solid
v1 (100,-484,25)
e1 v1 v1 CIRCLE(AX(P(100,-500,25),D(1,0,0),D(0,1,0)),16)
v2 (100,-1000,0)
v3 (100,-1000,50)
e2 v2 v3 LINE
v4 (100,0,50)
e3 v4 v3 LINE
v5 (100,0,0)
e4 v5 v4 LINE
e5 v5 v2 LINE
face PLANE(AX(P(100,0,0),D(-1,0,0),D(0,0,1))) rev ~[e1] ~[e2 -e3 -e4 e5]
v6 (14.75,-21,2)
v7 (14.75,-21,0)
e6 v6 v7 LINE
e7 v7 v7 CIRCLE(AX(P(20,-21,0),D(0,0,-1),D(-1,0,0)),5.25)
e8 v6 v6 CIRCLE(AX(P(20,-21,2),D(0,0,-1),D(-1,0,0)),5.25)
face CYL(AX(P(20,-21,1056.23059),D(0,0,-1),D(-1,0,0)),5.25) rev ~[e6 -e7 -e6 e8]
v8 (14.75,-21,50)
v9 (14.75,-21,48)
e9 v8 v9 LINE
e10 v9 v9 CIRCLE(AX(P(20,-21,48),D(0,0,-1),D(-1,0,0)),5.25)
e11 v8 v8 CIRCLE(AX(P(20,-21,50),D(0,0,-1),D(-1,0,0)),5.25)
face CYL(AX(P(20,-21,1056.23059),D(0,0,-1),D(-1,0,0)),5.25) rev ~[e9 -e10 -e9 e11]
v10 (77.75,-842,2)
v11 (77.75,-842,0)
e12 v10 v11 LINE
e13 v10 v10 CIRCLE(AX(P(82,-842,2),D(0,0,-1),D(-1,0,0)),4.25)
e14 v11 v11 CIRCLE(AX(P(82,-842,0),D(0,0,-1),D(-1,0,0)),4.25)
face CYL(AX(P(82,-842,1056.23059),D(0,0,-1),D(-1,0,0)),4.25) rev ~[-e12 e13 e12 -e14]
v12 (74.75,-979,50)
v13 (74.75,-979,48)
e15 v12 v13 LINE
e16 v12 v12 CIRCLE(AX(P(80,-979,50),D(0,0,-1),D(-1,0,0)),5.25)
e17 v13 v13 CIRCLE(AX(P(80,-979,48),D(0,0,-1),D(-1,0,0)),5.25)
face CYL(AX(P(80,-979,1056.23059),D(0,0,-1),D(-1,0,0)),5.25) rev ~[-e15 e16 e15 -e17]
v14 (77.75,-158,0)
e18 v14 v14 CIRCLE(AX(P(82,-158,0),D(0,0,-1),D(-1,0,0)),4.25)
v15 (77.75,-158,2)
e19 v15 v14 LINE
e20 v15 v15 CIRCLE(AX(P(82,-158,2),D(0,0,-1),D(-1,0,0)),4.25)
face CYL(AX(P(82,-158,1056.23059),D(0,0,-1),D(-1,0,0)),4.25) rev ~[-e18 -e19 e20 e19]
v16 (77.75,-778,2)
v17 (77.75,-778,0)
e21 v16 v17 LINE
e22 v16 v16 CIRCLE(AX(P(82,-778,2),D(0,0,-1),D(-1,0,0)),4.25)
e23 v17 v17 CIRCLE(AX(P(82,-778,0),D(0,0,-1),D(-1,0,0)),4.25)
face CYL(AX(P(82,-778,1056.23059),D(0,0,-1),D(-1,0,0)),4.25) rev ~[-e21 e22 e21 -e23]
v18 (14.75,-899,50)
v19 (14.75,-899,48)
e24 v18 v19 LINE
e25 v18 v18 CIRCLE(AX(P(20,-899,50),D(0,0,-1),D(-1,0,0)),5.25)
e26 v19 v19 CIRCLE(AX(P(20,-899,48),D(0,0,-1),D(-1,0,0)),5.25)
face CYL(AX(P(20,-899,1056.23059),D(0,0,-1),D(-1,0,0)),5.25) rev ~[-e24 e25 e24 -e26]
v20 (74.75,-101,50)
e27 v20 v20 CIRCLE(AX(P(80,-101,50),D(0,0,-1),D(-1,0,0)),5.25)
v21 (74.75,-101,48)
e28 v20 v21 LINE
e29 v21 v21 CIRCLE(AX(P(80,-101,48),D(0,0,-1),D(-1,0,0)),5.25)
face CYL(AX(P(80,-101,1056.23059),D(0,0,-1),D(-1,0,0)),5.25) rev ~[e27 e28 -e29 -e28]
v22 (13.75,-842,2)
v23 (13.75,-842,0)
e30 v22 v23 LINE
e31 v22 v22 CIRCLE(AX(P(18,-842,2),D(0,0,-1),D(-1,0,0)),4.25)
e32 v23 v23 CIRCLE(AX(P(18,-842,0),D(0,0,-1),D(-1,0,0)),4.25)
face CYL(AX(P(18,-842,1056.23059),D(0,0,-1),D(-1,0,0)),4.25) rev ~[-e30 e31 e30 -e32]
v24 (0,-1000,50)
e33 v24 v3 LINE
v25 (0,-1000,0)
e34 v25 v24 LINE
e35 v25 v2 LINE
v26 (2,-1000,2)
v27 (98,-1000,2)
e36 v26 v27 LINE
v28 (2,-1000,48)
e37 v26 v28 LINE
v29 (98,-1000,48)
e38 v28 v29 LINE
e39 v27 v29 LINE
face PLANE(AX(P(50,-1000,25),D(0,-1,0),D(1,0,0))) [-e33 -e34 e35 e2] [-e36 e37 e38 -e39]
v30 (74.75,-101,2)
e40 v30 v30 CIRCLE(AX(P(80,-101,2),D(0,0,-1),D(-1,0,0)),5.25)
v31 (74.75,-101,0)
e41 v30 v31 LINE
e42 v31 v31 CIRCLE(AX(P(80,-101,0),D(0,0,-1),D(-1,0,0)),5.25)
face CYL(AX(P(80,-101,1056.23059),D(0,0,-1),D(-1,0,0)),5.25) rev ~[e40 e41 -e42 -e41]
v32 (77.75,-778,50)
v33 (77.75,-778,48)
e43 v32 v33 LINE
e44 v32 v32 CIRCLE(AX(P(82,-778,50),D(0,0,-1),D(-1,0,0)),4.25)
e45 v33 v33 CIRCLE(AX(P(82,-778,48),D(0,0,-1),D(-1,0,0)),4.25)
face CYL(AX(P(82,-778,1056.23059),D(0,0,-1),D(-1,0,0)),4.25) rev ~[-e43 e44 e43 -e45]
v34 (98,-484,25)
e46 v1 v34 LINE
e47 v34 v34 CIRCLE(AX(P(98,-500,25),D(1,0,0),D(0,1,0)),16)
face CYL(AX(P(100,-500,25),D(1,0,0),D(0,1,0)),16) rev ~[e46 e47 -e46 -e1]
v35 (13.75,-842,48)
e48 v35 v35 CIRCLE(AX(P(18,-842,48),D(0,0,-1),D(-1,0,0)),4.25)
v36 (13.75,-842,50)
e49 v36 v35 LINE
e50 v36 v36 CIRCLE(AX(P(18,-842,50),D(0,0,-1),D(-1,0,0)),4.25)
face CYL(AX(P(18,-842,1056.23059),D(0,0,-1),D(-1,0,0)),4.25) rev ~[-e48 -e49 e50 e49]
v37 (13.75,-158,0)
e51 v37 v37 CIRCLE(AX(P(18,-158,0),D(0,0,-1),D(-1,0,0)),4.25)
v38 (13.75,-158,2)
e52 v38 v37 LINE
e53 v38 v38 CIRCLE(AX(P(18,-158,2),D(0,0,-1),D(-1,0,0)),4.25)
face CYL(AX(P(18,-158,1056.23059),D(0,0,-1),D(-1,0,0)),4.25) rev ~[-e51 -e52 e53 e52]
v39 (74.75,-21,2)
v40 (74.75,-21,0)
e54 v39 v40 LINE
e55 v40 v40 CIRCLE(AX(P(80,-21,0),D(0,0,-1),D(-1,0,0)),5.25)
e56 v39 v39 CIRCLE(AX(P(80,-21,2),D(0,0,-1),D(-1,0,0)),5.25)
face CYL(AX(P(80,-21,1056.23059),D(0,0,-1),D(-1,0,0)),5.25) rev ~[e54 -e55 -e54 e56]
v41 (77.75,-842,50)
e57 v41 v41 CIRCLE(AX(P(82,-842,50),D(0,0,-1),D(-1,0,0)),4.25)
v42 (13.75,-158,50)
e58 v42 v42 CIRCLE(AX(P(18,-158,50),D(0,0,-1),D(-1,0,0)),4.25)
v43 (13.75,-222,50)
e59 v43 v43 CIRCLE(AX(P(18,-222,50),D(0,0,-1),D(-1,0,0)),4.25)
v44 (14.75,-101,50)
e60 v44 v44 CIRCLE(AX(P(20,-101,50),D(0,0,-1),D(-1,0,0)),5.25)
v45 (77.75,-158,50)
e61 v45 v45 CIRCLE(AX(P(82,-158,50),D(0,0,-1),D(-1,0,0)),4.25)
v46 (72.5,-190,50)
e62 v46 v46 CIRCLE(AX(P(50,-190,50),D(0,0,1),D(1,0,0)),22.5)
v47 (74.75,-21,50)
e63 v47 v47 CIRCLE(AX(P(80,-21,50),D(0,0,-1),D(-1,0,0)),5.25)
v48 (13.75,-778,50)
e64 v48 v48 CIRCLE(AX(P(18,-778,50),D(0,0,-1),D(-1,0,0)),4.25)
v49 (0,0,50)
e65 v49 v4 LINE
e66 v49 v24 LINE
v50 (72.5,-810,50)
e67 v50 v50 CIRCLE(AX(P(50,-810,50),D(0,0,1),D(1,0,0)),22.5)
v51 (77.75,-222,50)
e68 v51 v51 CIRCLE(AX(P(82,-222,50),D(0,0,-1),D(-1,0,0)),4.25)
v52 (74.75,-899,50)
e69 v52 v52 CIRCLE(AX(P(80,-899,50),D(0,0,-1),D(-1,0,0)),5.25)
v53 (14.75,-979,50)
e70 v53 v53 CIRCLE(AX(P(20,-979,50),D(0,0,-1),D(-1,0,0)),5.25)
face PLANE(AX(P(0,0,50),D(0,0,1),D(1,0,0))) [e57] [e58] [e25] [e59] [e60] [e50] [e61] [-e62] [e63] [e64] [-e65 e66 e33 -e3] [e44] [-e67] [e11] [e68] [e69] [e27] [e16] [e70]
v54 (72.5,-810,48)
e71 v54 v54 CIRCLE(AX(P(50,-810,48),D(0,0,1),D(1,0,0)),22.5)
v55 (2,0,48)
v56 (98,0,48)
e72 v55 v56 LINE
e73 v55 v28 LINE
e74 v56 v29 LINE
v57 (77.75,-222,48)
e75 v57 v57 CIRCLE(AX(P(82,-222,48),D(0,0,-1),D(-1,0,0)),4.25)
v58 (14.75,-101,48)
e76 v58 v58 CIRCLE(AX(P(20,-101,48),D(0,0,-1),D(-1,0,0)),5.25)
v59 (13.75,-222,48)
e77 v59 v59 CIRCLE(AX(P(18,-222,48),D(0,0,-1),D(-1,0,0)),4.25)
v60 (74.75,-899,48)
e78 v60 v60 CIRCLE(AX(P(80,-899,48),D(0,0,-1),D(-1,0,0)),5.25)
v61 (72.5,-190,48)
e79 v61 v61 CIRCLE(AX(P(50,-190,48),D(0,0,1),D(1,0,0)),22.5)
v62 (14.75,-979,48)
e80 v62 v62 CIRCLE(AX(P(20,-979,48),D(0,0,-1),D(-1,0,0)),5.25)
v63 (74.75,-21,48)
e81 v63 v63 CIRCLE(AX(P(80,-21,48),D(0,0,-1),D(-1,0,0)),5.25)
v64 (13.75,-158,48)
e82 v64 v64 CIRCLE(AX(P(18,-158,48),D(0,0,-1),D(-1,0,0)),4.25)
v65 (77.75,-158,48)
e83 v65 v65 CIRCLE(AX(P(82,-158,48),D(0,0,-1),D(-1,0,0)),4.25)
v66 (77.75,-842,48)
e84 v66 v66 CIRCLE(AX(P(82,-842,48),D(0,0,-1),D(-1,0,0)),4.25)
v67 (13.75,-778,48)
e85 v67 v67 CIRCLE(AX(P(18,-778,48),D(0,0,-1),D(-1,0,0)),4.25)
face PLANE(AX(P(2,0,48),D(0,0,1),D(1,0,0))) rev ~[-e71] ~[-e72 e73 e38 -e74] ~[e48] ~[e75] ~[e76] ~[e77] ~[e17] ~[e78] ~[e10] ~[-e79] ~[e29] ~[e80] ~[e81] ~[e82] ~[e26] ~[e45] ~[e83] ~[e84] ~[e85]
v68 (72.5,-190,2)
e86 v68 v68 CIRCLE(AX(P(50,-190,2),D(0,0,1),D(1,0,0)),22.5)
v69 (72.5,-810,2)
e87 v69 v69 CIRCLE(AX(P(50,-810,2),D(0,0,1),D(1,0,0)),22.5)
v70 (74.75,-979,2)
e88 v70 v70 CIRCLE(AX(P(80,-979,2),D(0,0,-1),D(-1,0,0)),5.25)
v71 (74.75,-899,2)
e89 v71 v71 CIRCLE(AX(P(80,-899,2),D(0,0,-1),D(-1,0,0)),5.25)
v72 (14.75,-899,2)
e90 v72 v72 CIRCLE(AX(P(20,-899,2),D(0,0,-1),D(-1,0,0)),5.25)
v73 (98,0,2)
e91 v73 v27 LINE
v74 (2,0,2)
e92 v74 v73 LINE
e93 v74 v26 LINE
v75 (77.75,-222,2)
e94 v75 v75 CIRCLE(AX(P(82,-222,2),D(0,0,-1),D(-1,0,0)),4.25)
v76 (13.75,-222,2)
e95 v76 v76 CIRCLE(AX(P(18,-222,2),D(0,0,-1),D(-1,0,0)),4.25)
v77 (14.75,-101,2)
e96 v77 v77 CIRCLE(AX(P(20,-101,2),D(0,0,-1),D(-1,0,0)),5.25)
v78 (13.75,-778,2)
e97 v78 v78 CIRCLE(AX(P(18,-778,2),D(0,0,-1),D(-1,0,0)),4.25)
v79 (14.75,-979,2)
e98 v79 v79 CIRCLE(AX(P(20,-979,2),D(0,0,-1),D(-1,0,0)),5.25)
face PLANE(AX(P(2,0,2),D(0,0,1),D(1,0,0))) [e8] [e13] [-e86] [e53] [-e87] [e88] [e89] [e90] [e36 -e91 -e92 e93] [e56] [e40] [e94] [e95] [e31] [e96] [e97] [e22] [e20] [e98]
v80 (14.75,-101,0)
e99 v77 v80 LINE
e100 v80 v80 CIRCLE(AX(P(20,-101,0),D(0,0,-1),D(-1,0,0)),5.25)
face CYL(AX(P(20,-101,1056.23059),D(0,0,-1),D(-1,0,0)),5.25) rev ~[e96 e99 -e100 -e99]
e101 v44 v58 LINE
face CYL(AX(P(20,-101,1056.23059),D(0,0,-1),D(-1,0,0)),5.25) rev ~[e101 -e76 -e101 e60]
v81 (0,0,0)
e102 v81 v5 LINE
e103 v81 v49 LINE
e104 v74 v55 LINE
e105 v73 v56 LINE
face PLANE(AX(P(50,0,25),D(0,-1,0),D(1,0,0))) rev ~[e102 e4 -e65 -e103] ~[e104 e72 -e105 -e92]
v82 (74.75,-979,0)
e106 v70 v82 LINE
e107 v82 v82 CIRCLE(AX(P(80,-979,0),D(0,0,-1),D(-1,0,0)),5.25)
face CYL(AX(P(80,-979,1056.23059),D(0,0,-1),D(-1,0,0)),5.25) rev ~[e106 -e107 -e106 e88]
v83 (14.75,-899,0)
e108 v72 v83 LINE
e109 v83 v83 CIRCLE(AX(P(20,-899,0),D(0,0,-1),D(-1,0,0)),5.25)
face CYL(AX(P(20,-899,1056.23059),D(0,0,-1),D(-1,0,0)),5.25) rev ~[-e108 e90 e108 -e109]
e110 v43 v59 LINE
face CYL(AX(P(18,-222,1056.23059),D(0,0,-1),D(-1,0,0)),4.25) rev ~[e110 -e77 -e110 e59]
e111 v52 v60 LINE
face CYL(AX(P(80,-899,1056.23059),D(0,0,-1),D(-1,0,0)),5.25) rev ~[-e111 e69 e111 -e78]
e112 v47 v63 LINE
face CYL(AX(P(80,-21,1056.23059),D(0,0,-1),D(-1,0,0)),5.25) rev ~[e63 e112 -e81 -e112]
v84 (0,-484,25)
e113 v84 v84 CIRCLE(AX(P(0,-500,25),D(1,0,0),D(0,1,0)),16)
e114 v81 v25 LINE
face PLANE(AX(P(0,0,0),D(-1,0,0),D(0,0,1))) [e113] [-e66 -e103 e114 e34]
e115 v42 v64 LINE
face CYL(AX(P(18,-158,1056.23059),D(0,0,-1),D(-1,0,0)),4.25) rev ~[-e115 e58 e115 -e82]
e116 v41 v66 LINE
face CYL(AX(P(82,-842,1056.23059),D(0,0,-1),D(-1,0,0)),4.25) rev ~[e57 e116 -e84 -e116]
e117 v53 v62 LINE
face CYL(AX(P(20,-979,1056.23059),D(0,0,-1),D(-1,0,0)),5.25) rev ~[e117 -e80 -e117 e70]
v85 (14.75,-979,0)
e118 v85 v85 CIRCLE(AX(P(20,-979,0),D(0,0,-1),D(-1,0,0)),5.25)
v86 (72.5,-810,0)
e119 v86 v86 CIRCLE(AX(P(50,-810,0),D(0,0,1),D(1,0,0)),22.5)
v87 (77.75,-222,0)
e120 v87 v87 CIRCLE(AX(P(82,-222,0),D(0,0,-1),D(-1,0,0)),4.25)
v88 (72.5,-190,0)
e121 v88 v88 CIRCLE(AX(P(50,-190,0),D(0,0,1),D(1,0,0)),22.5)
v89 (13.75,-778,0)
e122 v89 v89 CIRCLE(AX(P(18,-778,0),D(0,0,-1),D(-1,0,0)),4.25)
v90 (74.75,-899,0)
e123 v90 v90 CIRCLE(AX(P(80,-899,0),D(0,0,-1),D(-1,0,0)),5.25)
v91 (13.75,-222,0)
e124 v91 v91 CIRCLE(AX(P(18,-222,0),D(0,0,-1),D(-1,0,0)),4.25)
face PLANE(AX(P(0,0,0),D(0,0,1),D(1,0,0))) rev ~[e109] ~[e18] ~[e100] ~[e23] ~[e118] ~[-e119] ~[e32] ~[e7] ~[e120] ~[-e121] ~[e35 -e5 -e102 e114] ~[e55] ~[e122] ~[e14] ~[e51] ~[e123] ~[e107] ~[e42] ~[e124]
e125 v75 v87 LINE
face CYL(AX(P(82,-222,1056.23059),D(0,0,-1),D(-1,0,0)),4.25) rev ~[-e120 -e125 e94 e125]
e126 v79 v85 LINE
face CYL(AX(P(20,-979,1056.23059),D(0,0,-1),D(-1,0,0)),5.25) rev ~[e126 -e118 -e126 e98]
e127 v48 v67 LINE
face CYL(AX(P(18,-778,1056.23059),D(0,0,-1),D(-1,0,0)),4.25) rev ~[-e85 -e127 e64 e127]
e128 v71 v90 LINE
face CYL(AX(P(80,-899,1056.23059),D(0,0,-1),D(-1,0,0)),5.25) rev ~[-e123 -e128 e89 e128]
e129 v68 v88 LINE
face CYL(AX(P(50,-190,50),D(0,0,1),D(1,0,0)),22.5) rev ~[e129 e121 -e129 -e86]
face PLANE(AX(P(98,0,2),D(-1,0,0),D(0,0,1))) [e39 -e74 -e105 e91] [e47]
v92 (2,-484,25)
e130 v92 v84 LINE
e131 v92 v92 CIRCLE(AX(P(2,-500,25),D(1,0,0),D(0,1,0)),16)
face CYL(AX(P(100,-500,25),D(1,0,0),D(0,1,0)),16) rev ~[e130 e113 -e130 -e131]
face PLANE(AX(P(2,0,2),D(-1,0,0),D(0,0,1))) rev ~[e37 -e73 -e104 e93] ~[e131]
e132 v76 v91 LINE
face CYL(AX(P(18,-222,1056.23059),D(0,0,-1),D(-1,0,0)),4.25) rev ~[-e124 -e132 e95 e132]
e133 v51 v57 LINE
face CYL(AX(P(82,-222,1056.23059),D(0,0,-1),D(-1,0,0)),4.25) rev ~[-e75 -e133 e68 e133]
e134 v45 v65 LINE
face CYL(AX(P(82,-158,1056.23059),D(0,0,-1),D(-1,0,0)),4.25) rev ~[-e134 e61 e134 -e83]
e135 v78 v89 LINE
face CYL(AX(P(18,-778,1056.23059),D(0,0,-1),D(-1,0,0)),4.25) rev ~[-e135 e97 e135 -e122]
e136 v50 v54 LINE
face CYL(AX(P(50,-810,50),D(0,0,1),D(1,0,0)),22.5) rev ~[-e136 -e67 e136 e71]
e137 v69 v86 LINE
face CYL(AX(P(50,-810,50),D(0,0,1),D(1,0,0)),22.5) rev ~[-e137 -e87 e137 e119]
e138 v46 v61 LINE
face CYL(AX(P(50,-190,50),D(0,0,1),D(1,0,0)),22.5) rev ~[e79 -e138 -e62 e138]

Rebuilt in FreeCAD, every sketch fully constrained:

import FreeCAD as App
import Part
import Sketcher

V = App.Vector


def add_polygon(sketch, points):
    """Adds a closed chain of lines whose ends are joined by coincident constraints."""
    first, n = sketch.GeometryCount, len(points)
    for a, b in zip(points, points[1:] + points[:1]):
        sketch.addGeometry(Part.LineSegment(App.Vector(*a, 0), App.Vector(*b, 0)), False)
    for i in range(n):
        sketch.addConstraint(Sketcher.Constraint("Coincident", first + i, 2, first + (i + 1) % n, 1))

doc = App.newDocument("Part")
body = doc.addObject("PartDesign::Body", "Body")

sketch1 = doc.addObject("Sketcher::SketchObject", "Sketch")
body.addObject(sketch1)
sketch1.AttachmentSupport = (doc.XZ_Plane, [""])
sketch1.MapMode = "FlatFace"
add_polygon(sketch1, [(0, 50), (0, 0), (100, 0), (100, 50)])
add_polygon(sketch1, [(98, 2), (2, 2), (2, 48), (98, 48)])
sketch1.addConstraint(Sketcher.Constraint("Vertical", 0))
sketch1.addConstraint(Sketcher.Constraint("Horizontal", 1))
sketch1.addConstraint(Sketcher.Constraint("Vertical", 2))
sketch1.addConstraint(Sketcher.Constraint("Horizontal", 3))
sketch1.addConstraint(Sketcher.Constraint("Horizontal", 4))
sketch1.addConstraint(Sketcher.Constraint("Vertical", 5))
sketch1.addConstraint(Sketcher.Constraint("Horizontal", 6))
sketch1.addConstraint(Sketcher.Constraint("Vertical", 7))
sketch1.addConstraint(Sketcher.Constraint("Coincident", 0, 2, -1, 1))
sketch1.addConstraint(Sketcher.Constraint("DistanceX", 1, 1, 1, 2, 100.0))
sketch1.addConstraint(Sketcher.Constraint("DistanceX", 4, 2, 4, 1, 96.0))
sketch1.addConstraint(Sketcher.Constraint("DistanceY", 0, 2, 0, 1, 50.0))
sketch1.addConstraint(Sketcher.Constraint("DistanceY", 5, 1, 5, 2, 46.0))
sketch1.addConstraint(Sketcher.Constraint("DistanceX", -1, 1, 4, 2, 2.0))
sketch1.addConstraint(Sketcher.Constraint("DistanceY", -1, 1, 4, 2, 2.0))
pad1 = doc.addObject("PartDesign::Pad", "Pad")
body.addObject(pad1)
pad1.Profile = sketch1
pad1.Length = 1000

sketch2 = doc.addObject("Sketcher::SketchObject", "Sketch001")
body.addObject(sketch2)
sketch2.AttachmentSupport = (doc.XY_Plane, [""])
sketch2.MapMode = "FlatFace"
sketch2.AttachmentOffset = App.Placement(V(0, 0, 50), App.Rotation())
sketch2.addGeometry(Part.Circle(V(50, -810, 0), V(0, 0, 1), 22), False)
sketch2.addGeometry(Part.Circle(V(50, -190, 0), V(0, 0, 1), 22), False)
sketch2.addConstraint(Sketcher.Constraint("Equal", 0, 1))
sketch2.addConstraint(Sketcher.Constraint("Vertical", 0, 3, 1, 3))
sketch2.addConstraint(Sketcher.Constraint("Diameter", 0, 45.0))
sketch2.addConstraint(Sketcher.Constraint("DistanceX", -1, 1, 0, 3, 50.0))
sketch2.addConstraint(Sketcher.Constraint("DistanceY", 0, 3, -1, 1, 810.0))
sketch2.addConstraint(Sketcher.Constraint("DistanceY", 1, 3, -1, 1, 190.0))
pocket1 = doc.addObject("PartDesign::Pocket", "Pocket")
body.addObject(pocket1)
pocket1.Profile = sketch2
pocket1.Type = "ThroughAll"

sketch3 = doc.addObject("Sketcher::SketchObject", "Sketch002")
body.addObject(sketch3)
sketch3.AttachmentSupport = (doc.XY_Plane, [""])
sketch3.MapMode = "FlatFace"
sketch3.AttachmentOffset = App.Placement(V(0, 0, 50), App.Rotation())
sketch3.addGeometry(Part.Circle(V(18, -842, 0), V(0, 0, 1), 4.2), False)
sketch3.addGeometry(Part.Circle(V(18, -778, 0), V(0, 0, 1), 4.2), False)
sketch3.addGeometry(Part.Circle(V(82, -778, 0), V(0, 0, 1), 4.2), False)
sketch3.addGeometry(Part.Circle(V(82, -842, 0), V(0, 0, 1), 4.2), False)
sketch3.addGeometry(Part.Circle(V(18, -222, 0), V(0, 0, 1), 4.2), False)
sketch3.addGeometry(Part.Circle(V(18, -158, 0), V(0, 0, 1), 4.2), False)
sketch3.addGeometry(Part.Circle(V(82, -158, 0), V(0, 0, 1), 4.2), False)
sketch3.addGeometry(Part.Circle(V(82, -222, 0), V(0, 0, 1), 4.2), False)
sketch3.addConstraint(Sketcher.Constraint("Equal", 0, 1))
sketch3.addConstraint(Sketcher.Constraint("Equal", 1, 2))
sketch3.addConstraint(Sketcher.Constraint("Equal", 2, 3))
sketch3.addConstraint(Sketcher.Constraint("Equal", 3, 4))
sketch3.addConstraint(Sketcher.Constraint("Equal", 4, 5))
sketch3.addConstraint(Sketcher.Constraint("Equal", 5, 6))
sketch3.addConstraint(Sketcher.Constraint("Equal", 6, 7))
sketch3.addConstraint(Sketcher.Constraint("Horizontal", 1, 3, 2, 3))
sketch3.addConstraint(Sketcher.Constraint("Horizontal", 0, 3, 3, 3))
sketch3.addConstraint(Sketcher.Constraint("Horizontal", 5, 3, 6, 3))
sketch3.addConstraint(Sketcher.Constraint("Horizontal", 4, 3, 7, 3))
sketch3.addConstraint(Sketcher.Constraint("Vertical", 0, 3, 1, 3))
sketch3.addConstraint(Sketcher.Constraint("Vertical", 2, 3, 3, 3))
sketch3.addConstraint(Sketcher.Constraint("Vertical", 1, 3, 4, 3))
sketch3.addConstraint(Sketcher.Constraint("Vertical", 4, 3, 5, 3))
sketch3.addConstraint(Sketcher.Constraint("Vertical", 3, 3, 6, 3))
sketch3.addConstraint(Sketcher.Constraint("Vertical", 6, 3, 7, 3))
sketch3.addConstraint(Sketcher.Constraint("Diameter", 0, 8.5))
sketch3.addConstraint(Sketcher.Constraint("DistanceX", -1, 1, 0, 3, 18.0))
sketch3.addConstraint(Sketcher.Constraint("DistanceY", 0, 3, -1, 1, 842.0))
sketch3.addConstraint(Sketcher.Constraint("DistanceY", 1, 3, -1, 1, 778.0))
sketch3.addConstraint(Sketcher.Constraint("DistanceX", -1, 1, 2, 3, 82.0))
sketch3.addConstraint(Sketcher.Constraint("DistanceY", 4, 3, -1, 1, 222.0))
sketch3.addConstraint(Sketcher.Constraint("DistanceY", 5, 3, -1, 1, 158.0))
doc.recompute()
hole = doc.addObject("PartDesign::Hole", "Hole")
body.addObject(hole)
hole.Profile = sketch3
hole.ThreadType = "None"
hole.Diameter = 8.5
hole.DepthType = "ThroughAll"

sketch4 = doc.addObject("Sketcher::SketchObject", "Sketch003")
body.addObject(sketch4)
sketch4.AttachmentSupport = (doc.XY_Plane, [""])
sketch4.MapMode = "FlatFace"
sketch4.AttachmentOffset = App.Placement(V(0, 0, 50), App.Rotation())
sketch4.addGeometry(Part.Circle(V(20, -101, 0), V(0, 0, 1), 5), False)
sketch4.addGeometry(Part.Circle(V(20, -21, 0), V(0, 0, 1), 5), False)
sketch4.addGeometry(Part.Circle(V(80, -21, 0), V(0, 0, 1), 5), False)
sketch4.addGeometry(Part.Circle(V(80, -101, 0), V(0, 0, 1), 5), False)
sketch4.addGeometry(Part.Circle(V(20, -899, 0), V(0, 0, 1), 5), False)
sketch4.addGeometry(Part.Circle(V(20, -979, 0), V(0, 0, 1), 5), False)
sketch4.addGeometry(Part.Circle(V(80, -979, 0), V(0, 0, 1), 5), False)
sketch4.addGeometry(Part.Circle(V(80, -899, 0), V(0, 0, 1), 5), False)
sketch4.addConstraint(Sketcher.Constraint("Equal", 0, 1))
sketch4.addConstraint(Sketcher.Constraint("Equal", 1, 2))
sketch4.addConstraint(Sketcher.Constraint("Equal", 2, 3))
sketch4.addConstraint(Sketcher.Constraint("Equal", 3, 4))
sketch4.addConstraint(Sketcher.Constraint("Equal", 4, 5))
sketch4.addConstraint(Sketcher.Constraint("Equal", 5, 6))
sketch4.addConstraint(Sketcher.Constraint("Equal", 6, 7))
sketch4.addConstraint(Sketcher.Constraint("Horizontal", 1, 3, 2, 3))
sketch4.addConstraint(Sketcher.Constraint("Horizontal", 0, 3, 3, 3))
sketch4.addConstraint(Sketcher.Constraint("Horizontal", 5, 3, 6, 3))
sketch4.addConstraint(Sketcher.Constraint("Horizontal", 4, 3, 7, 3))
sketch4.addConstraint(Sketcher.Constraint("Vertical", 0, 3, 1, 3))
sketch4.addConstraint(Sketcher.Constraint("Vertical", 2, 3, 3, 3))
sketch4.addConstraint(Sketcher.Constraint("Vertical", 1, 3, 4, 3))
sketch4.addConstraint(Sketcher.Constraint("Vertical", 4, 3, 5, 3))
sketch4.addConstraint(Sketcher.Constraint("Vertical", 3, 3, 6, 3))
sketch4.addConstraint(Sketcher.Constraint("Vertical", 6, 3, 7, 3))
sketch4.addConstraint(Sketcher.Constraint("Diameter", 0, 10.5))
sketch4.addConstraint(Sketcher.Constraint("DistanceX", -1, 1, 0, 3, 20.0))
sketch4.addConstraint(Sketcher.Constraint("DistanceY", 0, 3, -1, 1, 101.0))
sketch4.addConstraint(Sketcher.Constraint("DistanceY", 1, 3, -1, 1, 21.0))
sketch4.addConstraint(Sketcher.Constraint("DistanceX", -1, 1, 2, 3, 80.0))
sketch4.addConstraint(Sketcher.Constraint("DistanceY", 4, 3, -1, 1, 899.0))
sketch4.addConstraint(Sketcher.Constraint("DistanceY", 5, 3, -1, 1, 979.0))
doc.recompute()
hole2 = doc.addObject("PartDesign::Hole", "Hole001")
body.addObject(hole2)
hole2.Profile = sketch4
hole2.ThreadType = "None"
hole2.Diameter = 10.5
hole2.DepthType = "ThroughAll"

sketch5 = doc.addObject("Sketcher::SketchObject", "Sketch004")
body.addObject(sketch5)
sketch5.AttachmentSupport = (doc.YZ_Plane, [""])
sketch5.MapMode = "FlatFace"
sketch5.AttachmentOffset = App.Placement(V(0, 0, 100), App.Rotation())
sketch5.addGeometry(Part.Circle(V(-500, 25, 0), V(0, 0, 1), 16), False)
sketch5.addConstraint(Sketcher.Constraint("Diameter", 0, 32.0))
sketch5.addConstraint(Sketcher.Constraint("DistanceX", 0, 3, -1, 1, 500.0))
sketch5.addConstraint(Sketcher.Constraint("DistanceY", -1, 1, 0, 3, 25.0))
pocket2 = doc.addObject("PartDesign::Pocket", "Pocket001")
body.addObject(pocket2)
pocket2.Profile = sketch5
pocket2.Type = "ThroughAll"

doc.recompute()
